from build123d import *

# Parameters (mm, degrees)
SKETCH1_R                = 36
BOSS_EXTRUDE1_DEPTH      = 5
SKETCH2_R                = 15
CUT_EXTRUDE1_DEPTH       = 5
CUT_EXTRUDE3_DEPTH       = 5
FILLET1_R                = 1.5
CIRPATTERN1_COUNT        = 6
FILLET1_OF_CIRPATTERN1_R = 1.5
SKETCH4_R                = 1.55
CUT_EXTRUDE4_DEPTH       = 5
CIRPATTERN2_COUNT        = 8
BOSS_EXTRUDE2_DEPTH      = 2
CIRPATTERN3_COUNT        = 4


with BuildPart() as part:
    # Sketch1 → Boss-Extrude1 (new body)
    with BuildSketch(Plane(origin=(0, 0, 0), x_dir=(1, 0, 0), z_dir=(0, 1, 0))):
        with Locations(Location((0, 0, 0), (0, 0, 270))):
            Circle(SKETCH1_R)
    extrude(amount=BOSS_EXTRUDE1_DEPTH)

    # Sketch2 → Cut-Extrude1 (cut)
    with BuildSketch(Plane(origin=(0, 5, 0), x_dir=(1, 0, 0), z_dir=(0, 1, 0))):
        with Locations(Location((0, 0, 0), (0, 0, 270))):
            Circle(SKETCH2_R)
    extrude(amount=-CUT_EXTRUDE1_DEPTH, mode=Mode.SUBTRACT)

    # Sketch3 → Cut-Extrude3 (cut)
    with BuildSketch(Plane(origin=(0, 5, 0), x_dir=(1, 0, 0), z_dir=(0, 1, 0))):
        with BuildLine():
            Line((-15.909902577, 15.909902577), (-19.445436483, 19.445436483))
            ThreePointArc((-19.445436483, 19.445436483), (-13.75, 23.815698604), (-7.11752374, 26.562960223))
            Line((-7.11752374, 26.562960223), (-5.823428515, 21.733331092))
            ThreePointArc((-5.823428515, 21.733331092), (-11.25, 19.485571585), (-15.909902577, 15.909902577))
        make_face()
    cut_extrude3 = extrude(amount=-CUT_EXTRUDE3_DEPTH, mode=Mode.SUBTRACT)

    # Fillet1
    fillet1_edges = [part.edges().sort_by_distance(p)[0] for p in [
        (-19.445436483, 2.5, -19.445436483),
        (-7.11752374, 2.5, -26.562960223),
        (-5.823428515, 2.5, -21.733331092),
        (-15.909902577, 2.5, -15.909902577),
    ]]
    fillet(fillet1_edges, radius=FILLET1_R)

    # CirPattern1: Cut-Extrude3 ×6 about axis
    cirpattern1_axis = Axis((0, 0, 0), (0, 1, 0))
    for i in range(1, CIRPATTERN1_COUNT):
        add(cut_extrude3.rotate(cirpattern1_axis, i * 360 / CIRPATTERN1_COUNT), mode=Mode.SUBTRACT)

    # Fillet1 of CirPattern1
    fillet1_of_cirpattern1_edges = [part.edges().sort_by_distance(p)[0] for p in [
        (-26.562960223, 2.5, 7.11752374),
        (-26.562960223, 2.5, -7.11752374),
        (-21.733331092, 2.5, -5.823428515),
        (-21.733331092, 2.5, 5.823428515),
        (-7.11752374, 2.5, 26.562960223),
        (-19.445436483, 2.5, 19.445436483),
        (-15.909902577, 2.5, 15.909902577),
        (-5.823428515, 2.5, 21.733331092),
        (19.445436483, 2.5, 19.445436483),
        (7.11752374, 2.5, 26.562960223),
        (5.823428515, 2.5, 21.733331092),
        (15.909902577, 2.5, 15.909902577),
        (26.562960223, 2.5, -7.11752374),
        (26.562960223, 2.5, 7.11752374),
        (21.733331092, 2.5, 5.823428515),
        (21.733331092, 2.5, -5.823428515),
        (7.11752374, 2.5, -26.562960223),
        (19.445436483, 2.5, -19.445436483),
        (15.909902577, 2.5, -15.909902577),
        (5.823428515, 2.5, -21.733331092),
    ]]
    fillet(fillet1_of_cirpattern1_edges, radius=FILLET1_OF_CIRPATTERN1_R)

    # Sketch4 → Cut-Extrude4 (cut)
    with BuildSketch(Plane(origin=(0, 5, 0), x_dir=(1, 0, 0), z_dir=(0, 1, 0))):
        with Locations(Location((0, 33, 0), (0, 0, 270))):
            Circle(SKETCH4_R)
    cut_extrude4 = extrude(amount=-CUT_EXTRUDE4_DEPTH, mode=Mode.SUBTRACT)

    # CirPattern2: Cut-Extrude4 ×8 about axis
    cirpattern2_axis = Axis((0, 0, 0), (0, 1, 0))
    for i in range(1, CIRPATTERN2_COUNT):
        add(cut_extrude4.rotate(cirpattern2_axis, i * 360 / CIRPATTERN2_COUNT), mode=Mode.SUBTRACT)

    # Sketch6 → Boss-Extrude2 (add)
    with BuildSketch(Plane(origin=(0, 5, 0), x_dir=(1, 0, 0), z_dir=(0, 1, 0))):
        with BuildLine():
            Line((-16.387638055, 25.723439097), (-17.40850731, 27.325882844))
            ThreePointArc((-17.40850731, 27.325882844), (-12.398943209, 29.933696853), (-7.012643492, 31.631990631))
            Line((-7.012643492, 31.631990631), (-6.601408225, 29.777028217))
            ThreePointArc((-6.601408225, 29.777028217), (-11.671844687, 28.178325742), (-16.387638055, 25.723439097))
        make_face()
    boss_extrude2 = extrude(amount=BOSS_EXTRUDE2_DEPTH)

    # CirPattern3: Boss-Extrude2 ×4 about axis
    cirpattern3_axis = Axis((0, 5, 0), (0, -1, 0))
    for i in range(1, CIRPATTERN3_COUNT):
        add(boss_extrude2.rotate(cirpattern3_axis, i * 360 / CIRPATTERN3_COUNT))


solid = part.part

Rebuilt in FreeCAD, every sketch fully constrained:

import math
import FreeCAD as App
import Part
import Sketcher

V = App.Vector
Q = App.Units.Quantity


def edges_at(feature, points):
    """Names of the edges that pass closest to the given points."""
    edges = feature.Shape.Edges
    near = lambda p: min(range(len(edges)), key=lambda i: edges[i].distToShape(Part.Vertex(*p))[0])
    return sorted({f"Edge{near(p) + 1}" for p in points})

doc = App.newDocument("Part")
body = doc.addObject("PartDesign::Body", "Body")

# Sketch on XZ plane
sketch1 = body.newObject("Sketcher::SketchObject", "Sketch")
sketch1.AttachmentSupport = (doc.getObject("XZ_Plane"), [""])
sketch1.MapMode = "FlatFace"
sketch1.addGeometry(Part.Circle(V(0, 0, 0), V(0, 0, 1), 36), False)
sketch1.addConstraint([
    Sketcher.Constraint("Coincident", 0, 3, -1, 1),
    Sketcher.Constraint("Diameter", 0, 72.0),
])
pad1 = body.newObject("PartDesign::Pad", "Pad")
pad1.Profile = sketch1
pad1.Length = 5
pad1.Reversed = True

# Sketch on XZ plane
sketch2 = body.newObject("Sketcher::SketchObject", "Sketch001")
sketch2.AttachmentSupport = (doc.getObject("XZ_Plane"), [""])
sketch2.MapMode = "FlatFace"
sketch2.AttachmentOffset = App.Placement(V(0, 0, -5), App.Rotation())
sketch2.addGeometry(Part.Circle(V(0, 0, 0), V(0, 0, 1), 15), False)
sketch2.addConstraint([
    Sketcher.Constraint("Coincident", 0, 3, -1, 1),
    Sketcher.Constraint("Diameter", 0, 30.0),
])
pocket1 = body.newObject("PartDesign::Pocket", "Pocket")
pocket1.Profile = sketch2
pocket1.Length = 5
pocket1.Reversed = True

# Sketch on XZ plane
sketch3 = body.newObject("Sketcher::SketchObject", "Sketch002")
sketch3.AttachmentSupport = (doc.getObject("XZ_Plane"), [""])
sketch3.MapMode = "FlatFace"
sketch3.AttachmentOffset = App.Placement(V(0, 0, -5), App.Rotation())
sketch3.addGeometry([
    Part.LineSegment(V(-19.4, -19.4, 0), V(-15.9, -15.9, 0)),
    Part.ArcOfCircle(Part.Circle(V(0, 0, 0), V(0, 0, 1), 22.5), math.radians(-135), math.radians(-105)),
    Part.LineSegment(V(-5.8, -21.7, 0), V(-7.1, -26.6, 0)),
    Part.ArcOfCircle(Part.Circle(V(0, 0, 0), V(0, 0, 1), 27.5), math.radians(-135), math.radians(-105)),
], False)
sketch3.addConstraint([
    Sketcher.Constraint("Coincident", 0, 2, 1, 1),
    Sketcher.Constraint("Coincident", 1, 2, 2, 1),
    Sketcher.Constraint("Coincident", 2, 2, 3, 2),
    Sketcher.Constraint("Coincident", 3, 1, 0, 1),
    Sketcher.Constraint("Coincident", 1, 3, -1, 1),
    Sketcher.Constraint("Coincident", 3, 3, -1, 1),
    Sketcher.Constraint("Radius", 1, 22.5),
    Sketcher.Constraint("Radius", 3, 27.5),
    Sketcher.Constraint("Angle", 0, Q("45 deg")),
    Sketcher.Constraint("Angle", 2, Q("-105 deg")),
    Sketcher.Constraint("DistanceX", 1, 2, -1, 1, 5.823429),
    Sketcher.Constraint("DistanceY", 1, 2, 0, 2, 5.823429),
])
pocket2 = body.newObject("PartDesign::Pocket", "Pocket001")
pocket2.Profile = sketch3
pocket2.Length = 5
pocket2.Reversed = True
doc.recompute()

fillet = body.newObject("PartDesign::Fillet", "Fillet")
fillet.Base = (pocket2, edges_at(pocket2, [
    (-19.445, 2.5, -19.445),
    (-7.118, 2.5, -26.563),
    (-5.823, 2.5, -21.733),
    (-15.91, 2.5, -15.91),
]))
fillet.Radius = 1.5
doc.recompute()

polarpattern = body.newObject("PartDesign::PolarPattern", "PolarPattern")
polarpattern.Originals = [pocket2]
polarpattern.Axis = (doc.getObject("Y_Axis"), [""])
polarpattern.Angle = 360
polarpattern.Occurrences = 6
body.Tip = polarpattern
doc.recompute()

fillet2 = body.newObject("PartDesign::Fillet", "Fillet001")
fillet2.Base = (polarpattern, edges_at(polarpattern, [
    (-26.563, 2.5, 7.118),
    (-26.563, 2.5, -7.118),
    (-21.733, 2.5, -5.823),
    (-21.733, 2.5, 5.823),
    (-7.118, 2.5, 26.563),
    (-19.445, 2.5, 19.445),
    (-15.91, 2.5, 15.91),
    (-5.823, 2.5, 21.733),
    (19.445, 2.5, 19.445),
    (7.118, 2.5, 26.563),
    (5.823, 2.5, 21.733),
    (15.91, 2.5, 15.91),
    (26.563, 2.5, -7.118),
    (26.563, 2.5, 7.118),
    (21.733, 2.5, 5.823),
    (21.733, 2.5, -5.823),
    (7.118, 2.5, -26.563),
    (19.445, 2.5, -19.445),
    (15.91, 2.5, -15.91),
    (5.823, 2.5, -21.733),
]))
fillet2.Radius = 1.5

# Sketch on XZ plane
sketch4 = body.newObject("Sketcher::SketchObject", "Sketch003")
sketch4.AttachmentSupport = (doc.getObject("XZ_Plane"), [""])
sketch4.MapMode = "FlatFace"
sketch4.AttachmentOffset = App.Placement(V(0, 0, -5), App.Rotation())
sketch4.addGeometry(Part.Circle(V(0, -33, 0), V(0, 0, 1), 1.6), False)
sketch4.addConstraint([
    Sketcher.Constraint("PointOnObject", 0, 3, -2),
    Sketcher.Constraint("Diameter", 0, 3.1),
    Sketcher.Constraint("DistanceY", 0, 3, -1, 1, 33.0),
])
pocket3 = body.newObject("PartDesign::Pocket", "Pocket002")
pocket3.Profile = sketch4
pocket3.Length = 5
pocket3.Reversed = True
doc.recompute()

polarpattern2 = body.newObject("PartDesign::PolarPattern", "PolarPattern001")
polarpattern2.Originals = [pocket3]
polarpattern2.Axis = (doc.getObject("Y_Axis"), [""])
polarpattern2.Angle = 360
polarpattern2.Occurrences = 8
body.Tip = polarpattern2

# Sketch on XZ plane
sketch5 = body.newObject("Sketcher::SketchObject", "Sketch004")
sketch5.AttachmentSupport = (doc.getObject("XZ_Plane"), [""])
sketch5.MapMode = "FlatFace"
sketch5.AttachmentOffset = App.Placement(V(0, 0, -5), App.Rotation())
sketch5.addGeometry([
    Part.LineSegment(V(-17.4, -27.3, 0), V(-16.4, -25.7, 0)),
    Part.ArcOfCircle(Part.Circle(V(0, 0, 0), V(0, 0, 1), 30.5), math.radians(-123), math.radians(-102)),
    Part.LineSegment(V(-6.6, -29.8, 0), V(-7, -31.6, 0)),
    Part.ArcOfCircle(Part.Circle(V(0, 0, 0), V(0, 0, 1), 32.4), math.radians(-122.5), math.radians(-102.5)),
], False)
sketch5.addConstraint([
    Sketcher.Constraint("Coincident", 0, 2, 1, 1),
    Sketcher.Constraint("Coincident", 1, 2, 2, 1),
    Sketcher.Constraint("Coincident", 2, 2, 3, 2),
    Sketcher.Constraint("Coincident", 3, 1, 0, 1),
    Sketcher.Constraint("Coincident", 1, 3, -1, 1),
    Sketcher.Constraint("Coincident", 3, 3, -1, 1),
    Sketcher.Constraint("Radius", 1, 30.5),
    Sketcher.Constraint("Radius", 3, 32.4),
    Sketcher.Constraint("Angle", 0, Q("57.5 deg")),
    Sketcher.Constraint("Angle", 2, Q("-102.5 deg")),
    Sketcher.Constraint("DistanceX", 3, 1, 1, 2, 10.807099),
    Sketcher.Constraint("DistanceX", 0, 2, -1, 1, 16.387638),
])
pad2 = body.newObject("PartDesign::Pad", "Pad001")
pad2.Profile = sketch5
pad2.Length = 2
pad2.Reversed = True
doc.recompute()

polarpattern3 = body.newObject("PartDesign::PolarPattern", "PolarPattern002")
polarpattern3.Originals = [pad2]
polarpattern3.Axis = (doc.getObject("Y_Axis"), [""])
polarpattern3.Angle = 360
polarpattern3.Occurrences = 4
body.Tip = polarpattern3

doc.recompute()
